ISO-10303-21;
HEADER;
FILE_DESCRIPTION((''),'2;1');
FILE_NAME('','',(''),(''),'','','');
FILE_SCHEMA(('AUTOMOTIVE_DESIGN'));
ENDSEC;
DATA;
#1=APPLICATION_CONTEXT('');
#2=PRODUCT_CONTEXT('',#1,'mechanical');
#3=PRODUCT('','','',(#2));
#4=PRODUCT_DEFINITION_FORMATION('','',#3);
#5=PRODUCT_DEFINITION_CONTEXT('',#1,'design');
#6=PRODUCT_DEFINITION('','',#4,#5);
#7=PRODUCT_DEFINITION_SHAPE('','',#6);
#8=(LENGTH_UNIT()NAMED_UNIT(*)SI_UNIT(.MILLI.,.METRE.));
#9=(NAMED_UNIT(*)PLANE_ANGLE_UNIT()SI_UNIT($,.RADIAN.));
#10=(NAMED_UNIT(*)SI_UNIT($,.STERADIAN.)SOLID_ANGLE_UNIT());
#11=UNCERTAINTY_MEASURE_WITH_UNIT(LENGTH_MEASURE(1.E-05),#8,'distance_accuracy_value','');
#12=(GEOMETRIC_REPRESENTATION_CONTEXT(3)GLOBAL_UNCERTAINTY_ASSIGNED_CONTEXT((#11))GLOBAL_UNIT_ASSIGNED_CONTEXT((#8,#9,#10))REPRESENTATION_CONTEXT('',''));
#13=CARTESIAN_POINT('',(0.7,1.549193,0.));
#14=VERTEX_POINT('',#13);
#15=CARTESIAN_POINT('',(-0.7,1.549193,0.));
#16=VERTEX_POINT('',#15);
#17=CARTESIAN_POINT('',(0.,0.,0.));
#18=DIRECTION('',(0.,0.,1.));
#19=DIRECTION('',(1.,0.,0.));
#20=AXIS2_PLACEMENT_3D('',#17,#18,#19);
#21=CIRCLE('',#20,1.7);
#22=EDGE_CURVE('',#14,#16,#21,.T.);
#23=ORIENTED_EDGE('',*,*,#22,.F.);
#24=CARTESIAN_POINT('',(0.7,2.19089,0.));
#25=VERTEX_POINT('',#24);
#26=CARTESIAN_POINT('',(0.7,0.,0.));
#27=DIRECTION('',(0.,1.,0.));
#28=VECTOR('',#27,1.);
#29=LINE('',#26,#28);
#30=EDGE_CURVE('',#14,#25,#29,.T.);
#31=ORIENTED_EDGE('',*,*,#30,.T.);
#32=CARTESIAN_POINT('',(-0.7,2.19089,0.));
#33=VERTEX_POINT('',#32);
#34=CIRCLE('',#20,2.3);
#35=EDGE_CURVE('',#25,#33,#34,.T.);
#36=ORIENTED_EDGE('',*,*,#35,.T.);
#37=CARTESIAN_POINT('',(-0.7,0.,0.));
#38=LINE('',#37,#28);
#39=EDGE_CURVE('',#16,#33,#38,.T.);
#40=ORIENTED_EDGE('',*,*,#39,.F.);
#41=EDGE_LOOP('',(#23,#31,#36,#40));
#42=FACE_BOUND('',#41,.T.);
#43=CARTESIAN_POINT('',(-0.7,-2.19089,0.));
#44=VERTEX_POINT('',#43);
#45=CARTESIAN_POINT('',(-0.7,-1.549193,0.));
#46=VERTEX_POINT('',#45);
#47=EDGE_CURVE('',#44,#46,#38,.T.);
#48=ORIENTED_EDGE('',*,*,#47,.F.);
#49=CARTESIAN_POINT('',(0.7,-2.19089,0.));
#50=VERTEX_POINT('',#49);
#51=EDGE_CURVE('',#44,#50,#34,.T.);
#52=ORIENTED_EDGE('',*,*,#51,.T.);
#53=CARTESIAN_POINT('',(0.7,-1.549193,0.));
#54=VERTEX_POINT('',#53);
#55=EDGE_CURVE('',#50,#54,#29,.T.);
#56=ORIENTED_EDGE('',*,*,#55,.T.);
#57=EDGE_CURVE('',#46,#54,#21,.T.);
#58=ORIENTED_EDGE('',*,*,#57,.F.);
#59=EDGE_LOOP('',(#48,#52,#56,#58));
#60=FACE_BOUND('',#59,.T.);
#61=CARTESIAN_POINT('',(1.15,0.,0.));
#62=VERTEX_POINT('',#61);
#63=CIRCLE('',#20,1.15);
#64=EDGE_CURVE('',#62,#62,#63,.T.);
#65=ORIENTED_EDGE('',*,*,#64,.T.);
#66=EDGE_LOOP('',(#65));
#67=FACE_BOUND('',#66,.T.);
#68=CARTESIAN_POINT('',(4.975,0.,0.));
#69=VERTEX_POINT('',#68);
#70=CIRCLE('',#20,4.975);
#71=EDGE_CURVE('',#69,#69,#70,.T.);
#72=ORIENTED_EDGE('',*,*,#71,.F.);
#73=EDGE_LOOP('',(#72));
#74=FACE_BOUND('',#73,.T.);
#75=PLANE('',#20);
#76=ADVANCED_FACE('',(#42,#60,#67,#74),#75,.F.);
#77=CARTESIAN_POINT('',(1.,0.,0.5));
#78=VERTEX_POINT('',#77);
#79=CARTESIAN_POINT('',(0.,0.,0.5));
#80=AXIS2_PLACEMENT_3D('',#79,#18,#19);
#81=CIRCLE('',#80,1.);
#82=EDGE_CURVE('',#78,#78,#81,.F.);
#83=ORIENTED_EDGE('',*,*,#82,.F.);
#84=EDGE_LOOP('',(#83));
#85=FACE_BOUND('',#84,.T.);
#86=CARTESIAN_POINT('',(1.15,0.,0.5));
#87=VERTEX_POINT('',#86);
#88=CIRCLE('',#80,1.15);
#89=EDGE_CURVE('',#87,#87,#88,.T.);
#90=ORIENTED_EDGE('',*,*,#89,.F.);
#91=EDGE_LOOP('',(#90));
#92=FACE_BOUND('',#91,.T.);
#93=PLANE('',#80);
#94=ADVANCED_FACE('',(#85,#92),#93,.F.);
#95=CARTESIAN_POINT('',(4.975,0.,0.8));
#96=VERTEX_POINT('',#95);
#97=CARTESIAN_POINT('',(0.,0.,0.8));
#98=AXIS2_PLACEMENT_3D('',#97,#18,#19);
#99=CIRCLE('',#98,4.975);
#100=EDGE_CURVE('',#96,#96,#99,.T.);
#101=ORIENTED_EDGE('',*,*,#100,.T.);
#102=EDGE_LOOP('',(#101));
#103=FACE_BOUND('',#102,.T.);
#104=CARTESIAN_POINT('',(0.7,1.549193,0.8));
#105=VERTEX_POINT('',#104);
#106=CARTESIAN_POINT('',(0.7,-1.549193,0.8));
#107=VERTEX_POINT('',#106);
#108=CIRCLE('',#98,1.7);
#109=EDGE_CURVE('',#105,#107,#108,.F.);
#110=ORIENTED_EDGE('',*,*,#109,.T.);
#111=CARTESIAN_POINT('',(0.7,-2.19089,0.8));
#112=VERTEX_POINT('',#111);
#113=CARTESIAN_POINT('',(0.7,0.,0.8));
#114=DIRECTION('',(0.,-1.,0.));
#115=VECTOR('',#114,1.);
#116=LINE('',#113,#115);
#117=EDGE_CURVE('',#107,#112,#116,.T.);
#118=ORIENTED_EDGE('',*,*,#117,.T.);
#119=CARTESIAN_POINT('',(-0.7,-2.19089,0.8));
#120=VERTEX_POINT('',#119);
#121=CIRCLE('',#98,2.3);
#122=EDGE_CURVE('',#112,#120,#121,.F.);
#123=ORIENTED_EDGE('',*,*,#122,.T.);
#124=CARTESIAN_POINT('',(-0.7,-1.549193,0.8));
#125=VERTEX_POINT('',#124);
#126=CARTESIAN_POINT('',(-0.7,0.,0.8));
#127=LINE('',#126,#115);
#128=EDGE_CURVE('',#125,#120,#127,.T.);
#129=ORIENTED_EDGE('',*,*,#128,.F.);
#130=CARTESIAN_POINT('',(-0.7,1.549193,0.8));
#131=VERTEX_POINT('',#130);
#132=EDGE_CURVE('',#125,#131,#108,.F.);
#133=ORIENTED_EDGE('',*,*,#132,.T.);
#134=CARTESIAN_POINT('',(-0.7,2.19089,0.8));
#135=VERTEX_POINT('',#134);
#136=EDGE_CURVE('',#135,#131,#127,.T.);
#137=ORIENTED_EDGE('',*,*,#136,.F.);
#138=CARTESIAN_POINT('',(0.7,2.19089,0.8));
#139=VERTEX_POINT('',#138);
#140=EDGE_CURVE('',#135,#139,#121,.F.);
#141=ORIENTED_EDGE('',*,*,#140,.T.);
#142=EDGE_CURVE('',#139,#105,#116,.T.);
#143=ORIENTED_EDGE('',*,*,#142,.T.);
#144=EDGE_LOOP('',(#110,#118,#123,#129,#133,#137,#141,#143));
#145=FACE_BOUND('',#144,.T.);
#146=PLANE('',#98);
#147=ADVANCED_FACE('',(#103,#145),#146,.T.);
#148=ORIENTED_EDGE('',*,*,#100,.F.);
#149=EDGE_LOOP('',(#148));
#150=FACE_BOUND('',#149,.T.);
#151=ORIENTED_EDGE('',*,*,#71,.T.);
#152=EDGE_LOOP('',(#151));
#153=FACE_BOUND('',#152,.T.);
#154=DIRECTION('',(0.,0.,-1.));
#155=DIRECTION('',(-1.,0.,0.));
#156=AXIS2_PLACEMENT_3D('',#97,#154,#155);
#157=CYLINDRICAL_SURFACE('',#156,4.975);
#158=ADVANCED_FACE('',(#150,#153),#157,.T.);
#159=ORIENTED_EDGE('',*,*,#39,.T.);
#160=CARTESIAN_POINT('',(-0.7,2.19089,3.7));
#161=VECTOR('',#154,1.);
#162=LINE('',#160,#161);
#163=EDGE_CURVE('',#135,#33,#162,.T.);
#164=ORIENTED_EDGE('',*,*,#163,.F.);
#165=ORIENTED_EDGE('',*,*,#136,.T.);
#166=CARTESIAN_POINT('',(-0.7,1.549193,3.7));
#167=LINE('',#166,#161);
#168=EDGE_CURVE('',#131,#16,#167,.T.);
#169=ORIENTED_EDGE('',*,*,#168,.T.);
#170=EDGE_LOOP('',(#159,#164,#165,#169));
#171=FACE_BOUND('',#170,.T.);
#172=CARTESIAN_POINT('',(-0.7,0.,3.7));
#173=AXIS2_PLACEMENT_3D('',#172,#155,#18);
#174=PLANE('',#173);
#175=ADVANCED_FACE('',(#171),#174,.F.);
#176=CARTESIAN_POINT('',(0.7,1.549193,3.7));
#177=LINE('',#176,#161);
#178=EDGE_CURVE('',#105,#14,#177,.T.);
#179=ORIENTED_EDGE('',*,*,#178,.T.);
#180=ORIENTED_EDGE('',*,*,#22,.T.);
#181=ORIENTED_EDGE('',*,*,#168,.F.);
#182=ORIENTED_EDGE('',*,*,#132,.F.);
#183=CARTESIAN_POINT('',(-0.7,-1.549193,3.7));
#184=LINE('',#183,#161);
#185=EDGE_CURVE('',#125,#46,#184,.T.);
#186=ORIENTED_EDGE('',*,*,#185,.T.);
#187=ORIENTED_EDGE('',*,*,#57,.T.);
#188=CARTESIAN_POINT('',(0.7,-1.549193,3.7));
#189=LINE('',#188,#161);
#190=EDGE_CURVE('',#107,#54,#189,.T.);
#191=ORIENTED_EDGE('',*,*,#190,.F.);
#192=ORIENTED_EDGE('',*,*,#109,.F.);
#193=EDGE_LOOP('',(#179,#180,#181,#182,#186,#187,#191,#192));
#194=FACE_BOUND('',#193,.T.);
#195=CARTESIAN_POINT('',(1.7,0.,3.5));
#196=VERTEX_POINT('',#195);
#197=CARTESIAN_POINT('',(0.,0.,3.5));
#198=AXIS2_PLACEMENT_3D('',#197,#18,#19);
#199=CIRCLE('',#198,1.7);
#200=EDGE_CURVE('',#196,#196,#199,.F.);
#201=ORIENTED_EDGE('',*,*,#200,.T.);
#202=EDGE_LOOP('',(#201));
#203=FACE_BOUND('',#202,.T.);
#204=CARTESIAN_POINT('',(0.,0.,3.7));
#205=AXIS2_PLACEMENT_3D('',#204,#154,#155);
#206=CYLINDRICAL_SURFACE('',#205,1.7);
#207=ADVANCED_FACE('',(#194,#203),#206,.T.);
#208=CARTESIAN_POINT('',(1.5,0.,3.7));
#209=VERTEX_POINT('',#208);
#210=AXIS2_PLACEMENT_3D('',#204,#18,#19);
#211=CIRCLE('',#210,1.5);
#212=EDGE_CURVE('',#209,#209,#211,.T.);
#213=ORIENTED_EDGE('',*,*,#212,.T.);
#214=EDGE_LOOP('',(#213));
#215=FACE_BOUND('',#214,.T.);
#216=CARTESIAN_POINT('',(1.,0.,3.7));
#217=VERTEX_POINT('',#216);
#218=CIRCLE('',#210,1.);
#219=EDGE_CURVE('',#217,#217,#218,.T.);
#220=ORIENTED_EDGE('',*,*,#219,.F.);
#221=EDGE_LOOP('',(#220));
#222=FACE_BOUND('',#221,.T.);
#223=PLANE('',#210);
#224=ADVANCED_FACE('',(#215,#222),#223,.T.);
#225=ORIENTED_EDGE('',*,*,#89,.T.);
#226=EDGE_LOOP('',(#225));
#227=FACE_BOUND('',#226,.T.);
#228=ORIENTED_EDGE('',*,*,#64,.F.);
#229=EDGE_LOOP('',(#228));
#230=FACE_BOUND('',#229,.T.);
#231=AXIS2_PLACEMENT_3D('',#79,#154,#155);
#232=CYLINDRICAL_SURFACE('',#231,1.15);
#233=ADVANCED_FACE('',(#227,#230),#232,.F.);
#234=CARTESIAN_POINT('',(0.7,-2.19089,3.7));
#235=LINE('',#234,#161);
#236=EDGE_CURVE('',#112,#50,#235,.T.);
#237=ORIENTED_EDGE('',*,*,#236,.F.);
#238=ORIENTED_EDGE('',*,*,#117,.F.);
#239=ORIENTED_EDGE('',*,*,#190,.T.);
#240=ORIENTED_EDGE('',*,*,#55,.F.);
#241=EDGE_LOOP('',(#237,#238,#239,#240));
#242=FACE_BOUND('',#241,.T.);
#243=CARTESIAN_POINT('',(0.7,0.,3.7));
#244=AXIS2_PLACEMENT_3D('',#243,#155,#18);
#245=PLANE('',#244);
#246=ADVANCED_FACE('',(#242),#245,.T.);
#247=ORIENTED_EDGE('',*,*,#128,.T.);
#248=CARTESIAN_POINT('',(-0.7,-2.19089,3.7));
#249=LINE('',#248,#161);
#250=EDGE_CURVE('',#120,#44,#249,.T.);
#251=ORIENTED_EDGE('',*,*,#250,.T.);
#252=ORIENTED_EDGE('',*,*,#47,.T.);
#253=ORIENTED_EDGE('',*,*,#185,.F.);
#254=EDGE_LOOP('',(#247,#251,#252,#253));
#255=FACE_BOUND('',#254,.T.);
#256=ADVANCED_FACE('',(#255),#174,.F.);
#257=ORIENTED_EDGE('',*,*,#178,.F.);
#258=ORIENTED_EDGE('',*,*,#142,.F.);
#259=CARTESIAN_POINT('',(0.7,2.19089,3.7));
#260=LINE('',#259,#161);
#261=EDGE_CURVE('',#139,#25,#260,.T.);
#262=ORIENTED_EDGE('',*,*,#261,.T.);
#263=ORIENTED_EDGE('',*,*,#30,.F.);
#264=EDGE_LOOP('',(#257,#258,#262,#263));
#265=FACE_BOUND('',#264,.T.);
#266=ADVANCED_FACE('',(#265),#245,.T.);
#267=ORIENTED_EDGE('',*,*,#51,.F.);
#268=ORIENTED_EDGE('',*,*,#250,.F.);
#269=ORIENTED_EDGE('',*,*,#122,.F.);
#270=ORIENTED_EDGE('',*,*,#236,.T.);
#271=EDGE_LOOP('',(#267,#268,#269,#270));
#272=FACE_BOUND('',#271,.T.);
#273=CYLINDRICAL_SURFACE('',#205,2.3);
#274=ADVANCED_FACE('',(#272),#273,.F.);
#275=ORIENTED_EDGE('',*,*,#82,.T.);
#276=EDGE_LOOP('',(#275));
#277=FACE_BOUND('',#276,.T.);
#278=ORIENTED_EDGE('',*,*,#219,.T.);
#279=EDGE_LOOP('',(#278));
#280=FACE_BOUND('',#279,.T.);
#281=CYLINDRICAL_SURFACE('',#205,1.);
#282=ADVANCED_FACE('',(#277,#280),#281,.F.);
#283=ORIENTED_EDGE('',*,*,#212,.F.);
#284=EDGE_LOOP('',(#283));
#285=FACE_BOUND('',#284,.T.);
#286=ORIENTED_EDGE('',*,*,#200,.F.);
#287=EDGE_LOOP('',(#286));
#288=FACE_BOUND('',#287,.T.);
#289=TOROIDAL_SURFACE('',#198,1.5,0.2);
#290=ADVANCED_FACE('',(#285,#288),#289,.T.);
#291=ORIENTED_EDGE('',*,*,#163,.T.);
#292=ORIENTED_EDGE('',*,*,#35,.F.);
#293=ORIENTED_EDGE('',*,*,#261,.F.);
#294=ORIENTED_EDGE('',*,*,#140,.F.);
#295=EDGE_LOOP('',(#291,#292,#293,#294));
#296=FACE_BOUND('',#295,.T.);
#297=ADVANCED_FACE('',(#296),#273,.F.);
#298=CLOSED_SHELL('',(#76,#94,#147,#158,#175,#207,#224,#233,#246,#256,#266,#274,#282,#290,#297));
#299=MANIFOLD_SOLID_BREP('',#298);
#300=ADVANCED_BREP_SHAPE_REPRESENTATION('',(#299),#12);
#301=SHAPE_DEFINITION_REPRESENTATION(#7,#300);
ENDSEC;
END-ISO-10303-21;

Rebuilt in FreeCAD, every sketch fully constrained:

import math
import FreeCAD as App
import Part
import Sketcher

V = App.Vector
Q = App.Units.Quantity


def edges_at(feature, points):
    """Names of the edges that pass closest to the given points."""
    edges = feature.Shape.Edges
    near = lambda p: min(range(len(edges)), key=lambda i: edges[i].distToShape(Part.Vertex(*p))[0])
    return sorted({f"Edge{near(p) + 1}" for p in points})

doc = App.newDocument("Part")
params = doc.addObject("Spreadsheet::Sheet", "Params")
for row, (alias, value) in enumerate([
    ("sketch1_diameter", "9.95 mm"),
    ("pad1_length", "0.8 mm"),
    ("sketch2_diameter", "3.4 mm"),
    ("pad2_length", "3.7 mm"),
    ("sketch3_diameter", "2.3 mm"),
    ("pocket1_length", "0.5 mm"),
    ("sketch4_diameter", "2 mm"),
    ("sketch4_radius", "2.3 mm"),
    ("sketch4_radius2", "1.7 mm"),
    ("fillet_radius", "0.2 mm"),
], start=1):
    params.set(f"A{row}", alias)
    params.set(f"B{row}", "=" + value)
    params.setAlias(f"B{row}", alias)

body = doc.addObject("PartDesign::Body", "Body")

sketch1 = doc.addObject("Sketcher::SketchObject", "Sketch")
body.addObject(sketch1)
sketch1.AttachmentSupport = (doc.XY_Plane, [""])
sketch1.MapMode = "FlatFace"
sketch1.addGeometry(Part.Circle(V(0, 0, 0), V(0, 0, 1), 5), False)
sketch1.addConstraint([
    Sketcher.Constraint("Coincident", 0, 3, -1, 1),
    Sketcher.Constraint("Diameter", 0, Q("9.95 mm")),
])
sketch1.setExpression("Constraints[1]", "Params.sketch1_diameter")
pad1 = doc.addObject("PartDesign::Pad", "Pad")
body.addObject(pad1)
pad1.Profile = sketch1
pad1.setExpression("Length", "Params.pad1_length")

sketch2 = doc.addObject("Sketcher::SketchObject", "Sketch001")
body.addObject(sketch2)
sketch2.AttachmentSupport = (doc.XY_Plane, [""])
sketch2.MapMode = "FlatFace"
sketch2.addGeometry(Part.Circle(V(0, 0, 0), V(0, 0, 1), 1.7), False)
sketch2.addConstraint([
    Sketcher.Constraint("Coincident", 0, 3, -1, 1),
    Sketcher.Constraint("Diameter", 0, Q("3.4 mm")),
])
sketch2.setExpression("Constraints[1]", "Params.sketch2_diameter")
pad2 = doc.addObject("PartDesign::Pad", "Pad001")
body.addObject(pad2)
pad2.Profile = sketch2
pad2.setExpression("Length", "Params.pad2_length")

sketch3 = doc.addObject("Sketcher::SketchObject", "Sketch002")
body.addObject(sketch3)
sketch3.AttachmentSupport = (doc.XY_Plane, [""])
sketch3.MapMode = "FlatFace"
sketch3.addGeometry(Part.Circle(V(0, 0, 0), V(0, 0, 1), 1.1), False)
sketch3.addConstraint([
    Sketcher.Constraint("Coincident", 0, 3, -1, 1),
    Sketcher.Constraint("Diameter", 0, Q("2.3 mm")),
])
sketch3.setExpression("Constraints[1]", "Params.sketch3_diameter")
pocket1 = doc.addObject("PartDesign::Pocket", "Pocket")
body.addObject(pocket1)
pocket1.Profile = sketch3
pocket1.setExpression("Length", "Params.pocket1_length")
pocket1.Reversed = True

sketch4 = doc.addObject("Sketcher::SketchObject", "Sketch003")
body.addObject(sketch4)
sketch4.AttachmentSupport = (doc.XY_Plane, [""])
sketch4.MapMode = "FlatFace"
sketch4.addGeometry([
    Part.LineSegment(V(-0.7, -1.5, 0), V(-0.7, -2.2, 0)),
    Part.ArcOfCircle(Part.Circle(V(0, 0, 0), V(0, 0, 1), 2.3), math.radians(-108), math.radians(-72)),
    Part.LineSegment(V(0.7, -2.2, 0), V(0.7, -1.5, 0)),
    Part.ArcOfCircle(Part.Circle(V(0, 0, 0), V(0, 0, 1), 1.7), math.radians(-114), math.radians(-66)),
    Part.ArcOfCircle(Part.Circle(V(0, 0, 0), V(0, 0, 1), 2.3), math.radians(72), math.radians(108)),
    Part.LineSegment(V(-0.7, 2.2, 0), V(-0.7, 1.5, 0)),
    Part.ArcOfCircle(Part.Circle(V(0, 0, 0), V(0, 0, 1), 1.7), math.radians(66), math.radians(114)),
    Part.LineSegment(V(0.7, 1.5, 0), V(0.7, 2.2, 0)),
    Part.Circle(V(0, 0, 0), V(0, 0, 1), 1),
], False)
sketch4.addConstraint([
    Sketcher.Constraint("Coincident", 0, 2, 1, 1),
    Sketcher.Constraint("Coincident", 1, 2, 2, 1),
    Sketcher.Constraint("Coincident", 2, 2, 3, 2),
    Sketcher.Constraint("Coincident", 3, 1, 0, 1),
    Sketcher.Constraint("Coincident", 4, 2, 5, 1),
    Sketcher.Constraint("Coincident", 5, 2, 6, 2),
    Sketcher.Constraint("Coincident", 6, 1, 7, 1),
    Sketcher.Constraint("Coincident", 7, 2, 4, 1),
    Sketcher.Constraint("Vertical", 0),
    Sketcher.Constraint("Vertical", 2),
    Sketcher.Constraint("Vertical", 5),
    Sketcher.Constraint("Vertical", 7),
    Sketcher.Constraint("Coincident", 1, 3, -1, 1),
    Sketcher.Constraint("Coincident", 3, 3, -1, 1),
    Sketcher.Constraint("Coincident", 4, 3, -1, 1),
    Sketcher.Constraint("Coincident", 6, 3, -1, 1),
    Sketcher.Constraint("Coincident", 8, 3, -1, 1),
    Sketcher.Constraint("Equal", 1, 4),
    Sketcher.Constraint("Equal", 3, 6),
    Sketcher.Constraint("Horizontal", 0, 2, 1, 2),
    Sketcher.Constraint("Horizontal", 5, 2, 6, 1),
    Sketcher.Constraint("Vertical", 3, 1, 4, 2),
    Sketcher.Constraint("Diameter", 8, Q("2 mm")),
    Sketcher.Constraint("Radius", 1, Q("2.3 mm")),
    Sketcher.Constraint("Radius", 3, Q("1.7 mm")),
    Sketcher.Constraint("DistanceX", 0, 2, -1, 1, Q("0.7 mm")),
])
sketch4.setExpression("Constraints[22]", "Params.sketch4_diameter")
sketch4.setExpression("Constraints[23]", "Params.sketch4_radius")
sketch4.setExpression("Constraints[24]", "Params.sketch4_radius2")
pocket2 = doc.addObject("PartDesign::Pocket", "Pocket001")
body.addObject(pocket2)
pocket2.Profile = sketch4
pocket2.Type = "ThroughAll"
pocket2.Reversed = True
doc.recompute()

fillet = doc.addObject("PartDesign::Fillet", "Fillet")
body.addObject(fillet)
fillet.Base = (pocket2, edges_at(pocket2, [(1.7, 0, 3.7)]))
fillet.setExpression("Radius", "Params.fillet_radius")

doc.recompute()
